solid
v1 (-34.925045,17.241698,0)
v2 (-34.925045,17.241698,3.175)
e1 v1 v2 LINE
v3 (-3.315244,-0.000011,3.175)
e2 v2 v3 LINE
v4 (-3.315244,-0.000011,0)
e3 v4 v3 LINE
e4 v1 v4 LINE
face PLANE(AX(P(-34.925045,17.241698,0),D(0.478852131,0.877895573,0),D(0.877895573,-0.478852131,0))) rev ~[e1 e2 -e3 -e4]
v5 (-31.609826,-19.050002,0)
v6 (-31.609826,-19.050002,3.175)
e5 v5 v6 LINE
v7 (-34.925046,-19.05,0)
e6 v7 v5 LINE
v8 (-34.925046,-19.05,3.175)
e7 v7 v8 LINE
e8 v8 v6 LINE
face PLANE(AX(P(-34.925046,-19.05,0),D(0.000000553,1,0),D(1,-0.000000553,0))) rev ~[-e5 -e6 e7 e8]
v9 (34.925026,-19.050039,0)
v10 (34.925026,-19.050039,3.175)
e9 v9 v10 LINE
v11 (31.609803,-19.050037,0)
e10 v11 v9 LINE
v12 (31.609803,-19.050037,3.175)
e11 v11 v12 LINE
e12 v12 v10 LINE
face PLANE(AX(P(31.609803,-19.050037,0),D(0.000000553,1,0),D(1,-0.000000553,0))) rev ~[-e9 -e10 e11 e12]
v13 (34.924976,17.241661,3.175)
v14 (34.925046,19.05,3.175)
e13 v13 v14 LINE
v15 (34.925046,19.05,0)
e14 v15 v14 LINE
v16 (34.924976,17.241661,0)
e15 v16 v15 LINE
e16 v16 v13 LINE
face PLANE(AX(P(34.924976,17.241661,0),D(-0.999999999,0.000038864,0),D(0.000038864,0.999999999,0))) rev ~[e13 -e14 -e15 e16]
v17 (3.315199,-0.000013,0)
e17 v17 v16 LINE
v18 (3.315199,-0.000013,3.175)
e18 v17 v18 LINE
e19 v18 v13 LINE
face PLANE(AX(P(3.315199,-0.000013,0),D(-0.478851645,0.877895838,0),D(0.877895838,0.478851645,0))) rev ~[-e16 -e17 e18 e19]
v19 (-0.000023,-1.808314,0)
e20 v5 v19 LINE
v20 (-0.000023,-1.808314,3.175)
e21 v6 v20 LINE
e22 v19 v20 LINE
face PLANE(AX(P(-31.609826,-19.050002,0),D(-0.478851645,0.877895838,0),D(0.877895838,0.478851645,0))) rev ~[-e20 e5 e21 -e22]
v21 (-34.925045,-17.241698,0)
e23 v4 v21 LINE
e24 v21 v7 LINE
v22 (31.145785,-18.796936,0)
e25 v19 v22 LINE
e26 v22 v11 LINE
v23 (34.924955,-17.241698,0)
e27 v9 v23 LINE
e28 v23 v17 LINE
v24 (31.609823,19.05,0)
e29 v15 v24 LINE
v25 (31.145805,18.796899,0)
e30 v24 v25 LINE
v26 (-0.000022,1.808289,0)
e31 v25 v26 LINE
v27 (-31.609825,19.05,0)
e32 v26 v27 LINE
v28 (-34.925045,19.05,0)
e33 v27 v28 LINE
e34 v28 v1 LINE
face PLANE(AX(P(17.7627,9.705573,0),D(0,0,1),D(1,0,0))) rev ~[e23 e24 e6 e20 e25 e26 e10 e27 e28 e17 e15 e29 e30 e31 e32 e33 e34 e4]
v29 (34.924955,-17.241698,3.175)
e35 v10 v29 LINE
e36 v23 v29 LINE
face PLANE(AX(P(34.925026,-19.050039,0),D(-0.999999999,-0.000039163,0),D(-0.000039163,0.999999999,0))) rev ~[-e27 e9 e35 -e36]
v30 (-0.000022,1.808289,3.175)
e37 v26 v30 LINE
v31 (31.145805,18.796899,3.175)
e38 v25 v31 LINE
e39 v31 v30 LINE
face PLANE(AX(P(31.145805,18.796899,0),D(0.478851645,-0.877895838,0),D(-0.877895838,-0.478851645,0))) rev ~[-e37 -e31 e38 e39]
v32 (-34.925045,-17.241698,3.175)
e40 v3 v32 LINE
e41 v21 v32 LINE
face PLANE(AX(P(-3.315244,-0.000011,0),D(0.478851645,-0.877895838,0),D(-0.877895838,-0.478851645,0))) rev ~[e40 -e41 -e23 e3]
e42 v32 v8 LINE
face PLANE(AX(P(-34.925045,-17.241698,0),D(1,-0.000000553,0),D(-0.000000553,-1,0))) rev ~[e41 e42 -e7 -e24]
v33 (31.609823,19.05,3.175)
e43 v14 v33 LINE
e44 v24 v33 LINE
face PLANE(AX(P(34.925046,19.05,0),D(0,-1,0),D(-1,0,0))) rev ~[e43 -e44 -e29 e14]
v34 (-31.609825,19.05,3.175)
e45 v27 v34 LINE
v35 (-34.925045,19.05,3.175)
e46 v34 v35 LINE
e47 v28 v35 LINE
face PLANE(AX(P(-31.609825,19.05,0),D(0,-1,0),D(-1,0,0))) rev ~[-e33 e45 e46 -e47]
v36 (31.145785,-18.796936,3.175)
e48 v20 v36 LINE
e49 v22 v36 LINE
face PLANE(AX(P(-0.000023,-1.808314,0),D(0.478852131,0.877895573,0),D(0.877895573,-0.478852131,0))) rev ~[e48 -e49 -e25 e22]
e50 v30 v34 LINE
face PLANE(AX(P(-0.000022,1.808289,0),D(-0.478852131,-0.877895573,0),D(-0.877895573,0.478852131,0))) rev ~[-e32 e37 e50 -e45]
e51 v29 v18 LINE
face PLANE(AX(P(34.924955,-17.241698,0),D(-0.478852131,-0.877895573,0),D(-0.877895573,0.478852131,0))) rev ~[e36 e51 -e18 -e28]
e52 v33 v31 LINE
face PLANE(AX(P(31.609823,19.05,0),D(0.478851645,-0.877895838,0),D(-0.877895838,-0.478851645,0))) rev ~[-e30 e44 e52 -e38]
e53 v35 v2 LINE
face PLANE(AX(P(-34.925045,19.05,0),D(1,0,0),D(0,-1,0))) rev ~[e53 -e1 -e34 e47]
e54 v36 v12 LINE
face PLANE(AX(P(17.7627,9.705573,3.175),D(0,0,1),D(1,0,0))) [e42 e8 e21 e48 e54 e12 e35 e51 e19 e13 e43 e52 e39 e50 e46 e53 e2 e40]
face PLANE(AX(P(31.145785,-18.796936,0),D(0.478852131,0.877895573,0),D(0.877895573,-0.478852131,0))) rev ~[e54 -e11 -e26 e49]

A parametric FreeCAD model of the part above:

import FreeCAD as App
import Part
import Sketcher
from FreeCAD import Vector
Q = App.Units.Quantity


def add_polygon(sketch, points):
    """Adds a closed chain of lines whose ends are joined by coincident constraints."""
    first, n = sketch.GeometryCount, len(points)
    for a, b in zip(points, points[1:] + points[:1]):
        sketch.addGeometry(Part.LineSegment(App.Vector(*a, 0), App.Vector(*b, 0)), False)
    for i in range(n):
        sketch.addConstraint(Sketcher.Constraint("Coincident", first + i, 2, first + (i + 1) % n, 1))

doc = App.newDocument("Part")
params = doc.addObject("Spreadsheet::Sheet", "Params")
for row, (alias, value) in enumerate([
    ("pad1_length", "0.125 in"),
], start=1):
    params.set(f"A{row}", alias)
    params.set(f"B{row}", "=" + value)
    params.setAlias(f"B{row}", alias)

body = doc.addObject("PartDesign::Body", "Body")

sketch1 = body.newObject("Sketcher::SketchObject", "Sketch")
sketch1.AttachmentSupport = (doc.getObject("XY_Plane"), [""])
sketch1.MapMode = "FlatFace"
add_polygon(sketch1, [(3.3, 0), (34.9, 17.2), (34.9, 19.1), (31.6, 19.1), (31.1, 18.8), (0, 1.8), (-31.6, 19.1), (-34.9, 19.1), (-34.9, 17.2), (-3.3, 0), (-34.9, -17.2), (-34.9, -19.1), (-31.6, -19.1), (0, -1.8), (31.1, -18.8), (31.6, -19.1), (34.9, -19.1), (34.9, -17.2)])
sketch1.addConstraint(Sketcher.Constraint("Horizontal", 2))
sketch1.addConstraint(Sketcher.Constraint("Horizontal", 6))
sketch1.addConstraint(Sketcher.Constraint("Vertical", 7))
sketch1.addConstraint(Sketcher.Constraint("Vertical", 10))
sketch1.addConstraint(Sketcher.Constraint("Horizontal", 11))
sketch1.addConstraint(Sketcher.Constraint("Horizontal", 15))
sketch1.addConstraint(Sketcher.Constraint("Symmetric", 1, 2, 10, 2, -1, 1))
sketch1.addConstraint(Sketcher.Constraint("Symmetric", 2, 2, 5, 2, -2))
sketch1.addConstraint(Sketcher.Constraint("Symmetric", 7, 2, 9, 2, -1))
sketch1.addConstraint(Sketcher.Constraint("Parallel", 0, 3))
sketch1.addConstraint(Sketcher.Constraint("Parallel", 3, 4))
sketch1.addConstraint(Sketcher.Constraint("Parallel", 5, 8))
sketch1.addConstraint(Sketcher.Constraint("Parallel", 4, 9))
sketch1.addConstraint(Sketcher.Constraint("Parallel", 9, 12))
sketch1.addConstraint(Sketcher.Constraint("Parallel", 8, 13))
sketch1.addConstraint(Sketcher.Constraint("Parallel", 13, 14))
sketch1.addConstraint(Sketcher.Constraint("Parallel", 14, 17))
sketch1.addConstraint(Sketcher.Constraint("Horizontal", 9, 2, 16, 2))
sketch1.addConstraint(Sketcher.Constraint("Horizontal", 8, 2, 17, 2))
sketch1.addConstraint(Sketcher.Constraint("Vertical", 5, 2, 11, 2))
sketch1.addConstraint(Sketcher.Constraint("Vertical", 4, 2, 12, 2))
sketch1.addConstraint(Sketcher.Constraint("Equal", 2, 15))
sketch1.addConstraint(Sketcher.Constraint("Equal", 3, 14))
sketch1.addConstraint(Sketcher.Constraint("Equal", 1, 16))
sketch1.addConstraint(Sketcher.Constraint("DistanceY", 10, 2, 6, 2, Q("1.5 in")))
sketch1.addConstraint(Sketcher.Constraint("DistanceX", 4, 2, 0, 2, Q("1.3749999 in")))
sketch1.addConstraint(Sketcher.Constraint("DistanceY", 7, 2, 7, 1, 1.808302))
sketch1.addConstraint(Sketcher.Constraint("DistanceX", 6, 2, 6, 1, 3.31522))
sketch1.addConstraint(Sketcher.Constraint("DistanceY", -1, 1, 3, 2, 18.796899))
sketch1.addConstraint(Sketcher.Constraint("DistanceX", -1, 1, 17, 2, 3.315199))
sketch1.addConstraint(Sketcher.Constraint("DistanceX", 5, 2, 0, 2, 66.534801))
sketch1.addConstraint(Sketcher.Constraint("DistanceY", 8, 2, 4, 2, 1.8083))
sketch1.addConstraint(Sketcher.Constraint("DistanceX", 3, 2, 14, 2, 0.463998))
pad1 = body.newObject("PartDesign::Pad", "Pad")
pad1.Profile = sketch1
pad1.setExpression("Length", "Params.pad1_length")

doc.recompute()
